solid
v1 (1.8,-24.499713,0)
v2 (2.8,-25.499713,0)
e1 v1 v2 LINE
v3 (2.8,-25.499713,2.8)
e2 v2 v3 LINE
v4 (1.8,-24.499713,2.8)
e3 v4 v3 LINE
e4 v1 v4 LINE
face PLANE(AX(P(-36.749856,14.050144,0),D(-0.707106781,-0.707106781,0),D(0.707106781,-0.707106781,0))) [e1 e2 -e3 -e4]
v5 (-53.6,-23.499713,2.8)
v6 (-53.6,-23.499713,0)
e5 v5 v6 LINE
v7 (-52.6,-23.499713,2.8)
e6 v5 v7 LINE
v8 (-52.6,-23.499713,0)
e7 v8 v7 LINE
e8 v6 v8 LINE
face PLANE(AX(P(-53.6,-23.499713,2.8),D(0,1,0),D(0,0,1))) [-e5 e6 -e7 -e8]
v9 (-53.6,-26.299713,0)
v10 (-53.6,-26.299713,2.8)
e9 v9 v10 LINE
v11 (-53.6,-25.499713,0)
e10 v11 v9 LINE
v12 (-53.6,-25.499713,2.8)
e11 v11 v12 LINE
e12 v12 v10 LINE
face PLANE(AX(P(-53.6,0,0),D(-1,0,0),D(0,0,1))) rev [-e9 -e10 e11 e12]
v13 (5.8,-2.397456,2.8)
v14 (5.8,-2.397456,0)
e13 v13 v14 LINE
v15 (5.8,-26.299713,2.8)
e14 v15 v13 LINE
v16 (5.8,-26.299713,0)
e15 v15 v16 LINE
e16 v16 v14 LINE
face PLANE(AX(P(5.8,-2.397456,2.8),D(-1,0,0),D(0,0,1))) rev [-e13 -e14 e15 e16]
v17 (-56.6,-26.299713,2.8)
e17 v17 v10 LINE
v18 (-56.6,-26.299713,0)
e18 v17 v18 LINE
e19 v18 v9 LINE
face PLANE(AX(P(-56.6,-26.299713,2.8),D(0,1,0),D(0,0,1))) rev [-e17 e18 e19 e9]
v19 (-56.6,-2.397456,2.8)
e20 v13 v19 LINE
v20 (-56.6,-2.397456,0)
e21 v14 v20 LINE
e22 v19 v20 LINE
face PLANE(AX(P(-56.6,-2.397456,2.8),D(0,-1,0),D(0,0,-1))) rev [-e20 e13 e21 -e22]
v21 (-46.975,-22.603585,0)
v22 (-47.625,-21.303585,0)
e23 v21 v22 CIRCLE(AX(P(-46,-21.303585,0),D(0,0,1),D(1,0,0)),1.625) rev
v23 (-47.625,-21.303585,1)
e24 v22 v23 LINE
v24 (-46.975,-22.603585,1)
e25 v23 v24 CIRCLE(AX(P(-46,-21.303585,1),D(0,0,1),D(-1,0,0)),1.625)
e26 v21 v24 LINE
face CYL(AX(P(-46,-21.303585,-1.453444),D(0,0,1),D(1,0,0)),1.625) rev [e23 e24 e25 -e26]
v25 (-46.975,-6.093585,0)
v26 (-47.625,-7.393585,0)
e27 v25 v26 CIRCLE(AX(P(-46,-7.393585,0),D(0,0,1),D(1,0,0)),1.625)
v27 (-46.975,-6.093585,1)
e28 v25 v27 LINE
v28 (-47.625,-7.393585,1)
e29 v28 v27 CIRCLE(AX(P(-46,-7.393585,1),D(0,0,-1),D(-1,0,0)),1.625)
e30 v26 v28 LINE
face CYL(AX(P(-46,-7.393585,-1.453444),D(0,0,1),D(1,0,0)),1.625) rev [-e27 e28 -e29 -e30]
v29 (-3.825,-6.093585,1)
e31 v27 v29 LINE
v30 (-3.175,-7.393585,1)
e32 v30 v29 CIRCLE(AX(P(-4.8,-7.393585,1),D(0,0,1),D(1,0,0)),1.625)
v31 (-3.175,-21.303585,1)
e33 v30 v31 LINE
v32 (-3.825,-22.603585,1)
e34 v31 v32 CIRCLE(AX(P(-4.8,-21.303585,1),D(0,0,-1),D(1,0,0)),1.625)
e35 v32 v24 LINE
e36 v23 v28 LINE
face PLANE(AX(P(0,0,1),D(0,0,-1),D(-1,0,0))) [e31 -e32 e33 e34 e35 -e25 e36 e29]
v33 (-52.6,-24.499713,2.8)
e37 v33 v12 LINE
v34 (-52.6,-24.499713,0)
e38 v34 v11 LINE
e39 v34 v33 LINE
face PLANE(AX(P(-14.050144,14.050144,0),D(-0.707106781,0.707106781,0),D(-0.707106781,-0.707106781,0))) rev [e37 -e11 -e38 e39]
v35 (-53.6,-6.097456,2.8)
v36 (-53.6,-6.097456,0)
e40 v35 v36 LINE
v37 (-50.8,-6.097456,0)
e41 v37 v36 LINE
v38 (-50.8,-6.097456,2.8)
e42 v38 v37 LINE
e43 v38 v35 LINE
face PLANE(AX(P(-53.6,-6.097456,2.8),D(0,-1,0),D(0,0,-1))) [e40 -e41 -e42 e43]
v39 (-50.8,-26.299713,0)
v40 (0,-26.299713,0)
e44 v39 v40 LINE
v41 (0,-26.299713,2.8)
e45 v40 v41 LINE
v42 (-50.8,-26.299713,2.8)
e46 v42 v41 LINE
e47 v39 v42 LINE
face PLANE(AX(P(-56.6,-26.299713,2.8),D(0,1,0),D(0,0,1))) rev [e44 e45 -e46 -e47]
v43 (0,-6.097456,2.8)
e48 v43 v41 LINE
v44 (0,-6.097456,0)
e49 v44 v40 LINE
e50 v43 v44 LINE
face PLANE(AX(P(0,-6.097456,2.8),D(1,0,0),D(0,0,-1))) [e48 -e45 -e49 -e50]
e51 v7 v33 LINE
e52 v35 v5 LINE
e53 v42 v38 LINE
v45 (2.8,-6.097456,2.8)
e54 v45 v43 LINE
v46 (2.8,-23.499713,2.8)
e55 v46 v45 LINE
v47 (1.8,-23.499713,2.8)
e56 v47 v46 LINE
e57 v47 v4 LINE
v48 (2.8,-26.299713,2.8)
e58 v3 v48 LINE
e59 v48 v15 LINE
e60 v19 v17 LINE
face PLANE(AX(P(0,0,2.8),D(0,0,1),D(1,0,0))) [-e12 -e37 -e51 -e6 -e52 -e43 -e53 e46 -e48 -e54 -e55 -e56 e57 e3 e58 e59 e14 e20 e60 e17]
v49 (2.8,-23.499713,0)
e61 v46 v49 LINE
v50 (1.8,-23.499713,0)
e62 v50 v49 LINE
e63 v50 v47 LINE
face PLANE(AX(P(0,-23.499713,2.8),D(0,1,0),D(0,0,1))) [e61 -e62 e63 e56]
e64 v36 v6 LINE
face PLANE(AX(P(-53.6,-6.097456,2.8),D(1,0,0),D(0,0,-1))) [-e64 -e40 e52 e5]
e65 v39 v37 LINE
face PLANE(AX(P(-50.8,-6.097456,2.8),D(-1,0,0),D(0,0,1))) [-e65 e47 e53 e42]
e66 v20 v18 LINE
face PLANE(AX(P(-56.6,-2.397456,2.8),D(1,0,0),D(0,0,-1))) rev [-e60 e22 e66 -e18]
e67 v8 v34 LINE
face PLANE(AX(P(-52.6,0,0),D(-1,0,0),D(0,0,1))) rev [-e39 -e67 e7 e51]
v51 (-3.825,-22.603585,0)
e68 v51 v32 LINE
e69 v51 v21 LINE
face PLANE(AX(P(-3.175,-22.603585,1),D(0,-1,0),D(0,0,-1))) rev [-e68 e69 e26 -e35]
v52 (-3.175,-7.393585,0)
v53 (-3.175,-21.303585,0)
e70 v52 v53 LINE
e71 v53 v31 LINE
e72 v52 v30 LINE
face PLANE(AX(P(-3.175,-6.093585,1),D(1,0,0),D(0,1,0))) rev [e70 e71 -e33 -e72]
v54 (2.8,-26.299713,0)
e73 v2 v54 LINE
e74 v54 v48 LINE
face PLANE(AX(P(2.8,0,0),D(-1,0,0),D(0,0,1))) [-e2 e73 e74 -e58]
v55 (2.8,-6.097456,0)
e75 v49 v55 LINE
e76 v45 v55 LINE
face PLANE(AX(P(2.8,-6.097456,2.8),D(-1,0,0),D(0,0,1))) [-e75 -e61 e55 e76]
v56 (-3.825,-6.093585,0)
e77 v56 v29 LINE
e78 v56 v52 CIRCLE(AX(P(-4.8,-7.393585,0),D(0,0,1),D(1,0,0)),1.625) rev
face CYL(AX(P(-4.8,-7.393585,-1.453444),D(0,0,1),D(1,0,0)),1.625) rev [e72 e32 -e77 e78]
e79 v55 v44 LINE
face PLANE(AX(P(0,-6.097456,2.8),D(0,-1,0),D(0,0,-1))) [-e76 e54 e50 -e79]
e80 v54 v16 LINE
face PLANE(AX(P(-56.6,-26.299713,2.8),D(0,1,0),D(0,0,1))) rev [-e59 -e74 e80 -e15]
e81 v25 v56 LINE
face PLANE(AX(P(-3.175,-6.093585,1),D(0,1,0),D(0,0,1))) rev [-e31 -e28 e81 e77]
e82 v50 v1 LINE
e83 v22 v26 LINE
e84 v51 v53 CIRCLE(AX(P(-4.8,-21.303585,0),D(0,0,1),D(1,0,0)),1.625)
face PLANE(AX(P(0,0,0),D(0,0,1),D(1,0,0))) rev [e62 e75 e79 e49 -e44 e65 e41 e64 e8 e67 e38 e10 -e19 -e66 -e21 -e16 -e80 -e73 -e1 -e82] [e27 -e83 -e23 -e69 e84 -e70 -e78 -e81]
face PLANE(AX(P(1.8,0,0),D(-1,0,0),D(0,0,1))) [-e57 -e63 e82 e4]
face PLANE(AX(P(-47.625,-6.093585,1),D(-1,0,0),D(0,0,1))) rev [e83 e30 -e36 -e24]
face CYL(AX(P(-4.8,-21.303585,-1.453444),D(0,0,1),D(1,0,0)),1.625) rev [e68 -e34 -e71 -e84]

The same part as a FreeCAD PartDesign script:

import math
import FreeCAD as App
import Part
import Sketcher
Q = App.Units.Quantity


def add_polygon(sketch, points):
    """Adds a closed chain of lines whose ends are joined by coincident constraints."""
    first, n = sketch.GeometryCount, len(points)
    for a, b in zip(points, points[1:] + points[:1]):
        sketch.addGeometry(Part.LineSegment(App.Vector(*a, 0), App.Vector(*b, 0)), False)
    for i in range(n):
        sketch.addConstraint(Sketcher.Constraint("Coincident", first + i, 2, first + (i + 1) % n, 1))

doc = App.newDocument("Part")
body = doc.addObject("PartDesign::Body", "Body")

# Sketch on XY plane
sketch1 = doc.addObject("Sketcher::SketchObject", "Sketch")
body.addObject(sketch1)
sketch1.AttachmentSupport = (doc.XY_Plane, [""])
sketch1.MapMode = "FlatFace"
add_polygon(sketch1, [(-56.6, -2.4), (-56.6, -26.3), (5.8, -26.3), (5.8, -2.4)])  # lines 0-3
add_polygon(sketch1, [(-50.8, -23.5), (-53.6, -23.5), (-53.6, -6.1), (-50.8, -6.1)])  # lines 4-7
add_polygon(sketch1, [(2.8, -23.5), (0, -23.5), (0, -6.1), (2.8, -6.1)])  # lines 8-11
sketch1.addConstraint([
    Sketcher.Constraint("Vertical", 0),
    Sketcher.Constraint("Horizontal", 1),
    Sketcher.Constraint("Vertical", 2),
    Sketcher.Constraint("Horizontal", 3),
    Sketcher.Constraint("Horizontal", 4),
    Sketcher.Constraint("Vertical", 5),
    Sketcher.Constraint("Horizontal", 6),
    Sketcher.Constraint("Vertical", 7),
    Sketcher.Constraint("Horizontal", 8),
    Sketcher.Constraint("Vertical", 9),
    Sketcher.Constraint("Horizontal", 10),
    Sketcher.Constraint("Vertical", 11),
    Sketcher.Constraint("PointOnObject", 8, 2, -2),
    Sketcher.Constraint("Horizontal", 7, 2, 8, 2),
    Sketcher.Constraint("Horizontal", 6, 2, 9, 2),
    Sketcher.Constraint("Equal", 6, 8),
    Sketcher.Constraint("DistanceX", 1, 1, 1, 2, 62.4),
    Sketcher.Constraint("DistanceX", 4, 2, 4, 1, 2.8),
    Sketcher.Constraint("DistanceX", 0, 2, 4, 2, 3.0),
    Sketcher.Constraint("DistanceX", 10, 2, 2, 2, 3.0),
    Sketcher.Constraint("DistanceY", 0, 2, 4, 2, 2.8),
    Sketcher.Constraint("DistanceY", 5, 2, 3, 2, 3.7),
    Sketcher.Constraint("DistanceY", 0, 2, 0, 1, 23.902256),
    Sketcher.Constraint("DistanceY", 0, 2, -1, 1, 26.299713),
])
pad1 = doc.addObject("PartDesign::Pad", "Pad")
body.addObject(pad1)
pad1.Profile = sketch1
pad1.Length = 2.8

# Sketch on XY plane
sketch2 = doc.addObject("Sketcher::SketchObject", "Sketch001")
body.addObject(sketch2)
sketch2.AttachmentSupport = (doc.XY_Plane, [""])
sketch2.MapMode = "FlatFace"
sketch2.AttachmentOffset = App.Placement(App.Vector(0, 0, 2.8), App.Rotation())
add_polygon(sketch2, [(-50.8, -23.5), (-52.6, -23.5), (-52.6, -24.5), (-53.6, -25.5), (-53.6, -26.3), (-50.8, -26.3)])  # lines 0-5
sketch2.addConstraint([
    Sketcher.Constraint("Horizontal", 0),
    Sketcher.Constraint("Vertical", 1),
    Sketcher.Constraint("Vertical", 3),
    Sketcher.Constraint("Horizontal", 4),
    Sketcher.Constraint("Vertical", 5),
    Sketcher.Constraint("Equal", 4, 5),
    Sketcher.Constraint("DistanceY", 1, 2, 1, 1, 1.0),
    Sketcher.Constraint("Angle", 2, Q("-135 deg")),
    Sketcher.Constraint("DistanceX", 0, 2, 0, 1, 1.8),
    Sketcher.Constraint("DistanceX", 4, 1, 4, 2, 2.8),
    Sketcher.Constraint("DistanceX", 0, 2, -1, 1, 52.6),
    Sketcher.Constraint("DistanceY", 0, 2, -1, 1, 23.499713),
])
pocket1 = doc.addObject("PartDesign::Pocket", "Pocket")
body.addObject(pocket1)
pocket1.Profile = sketch2
pocket1.Type = "ThroughAll"
doc.recompute()

datumplane = doc.addObject("PartDesign::Plane", "DatumPlane")
body.addObject(datumplane)
datumplane.AttachmentSupport = (doc.YZ_Plane, [""])
datumplane.MapMode = "FlatFace"
datumplane.AttachmentOffset = App.Placement(App.Vector(0, 0, -25.4), App.Rotation())
mirrored = doc.addObject("PartDesign::Mirrored", "Mirrored")
body.addObject(mirrored)
mirrored.Originals = [pocket1]
mirrored.MirrorPlane = (datumplane, [""])
body.Tip = mirrored

# Sketch on XY plane
sketch3 = doc.addObject("Sketcher::SketchObject", "Sketch002")
body.addObject(sketch3)
sketch3.AttachmentSupport = (doc.XY_Plane, [""])
sketch3.MapMode = "FlatFace"
add_polygon(sketch3, [(-3, -6), (-3, -23), (-48, -23), (-48, -6)])  # lines 0-3
sketch3.addConstraint([
    Sketcher.Constraint("Vertical", 0),
    Sketcher.Constraint("Horizontal", 1),
    Sketcher.Constraint("Vertical", 2),
    Sketcher.Constraint("Horizontal", 3),
    Sketcher.Constraint("DistanceX", 1, 2, 1, 1, 44.45),
    Sketcher.Constraint("DistanceY", 0, 2, 0, 1, 16.51),
    Sketcher.Constraint("DistanceX", 0, 2, -1, 1, 3.175),
    Sketcher.Constraint("DistanceY", 0, 2, -1, 1, 22.603585),
])
pocket2 = doc.addObject("PartDesign::Pocket", "Pocket001")
body.addObject(pocket2)
pocket2.Profile = sketch3
pocket2.Length = 1
pocket2.Reversed = True

# Sketch on XY plane
sketch4 = doc.addObject("Sketcher::SketchObject", "Sketch003")
body.addObject(sketch4)
sketch4.AttachmentSupport = (doc.XY_Plane, [""])
sketch4.MapMode = "FlatFace"
sketch4.AttachmentOffset = App.Placement(App.Vector(0, 0, 1), App.Rotation())
sketch4.addGeometry([
    Part.LineSegment(App.Vector(-3.8, -6.1, 0), App.Vector(-3.2, -6.1, 0)),
    Part.LineSegment(App.Vector(-3.2, -6.1, 0), App.Vector(-3.2, -7.4, 0)),
    Part.ArcOfCircle(Part.Circle(App.Vector(-4.8, -7.4, 0), App.Vector(0, 0, 1), 1.6), math.radians(0), math.radians(53)),
], False)
sketch4.addConstraint([
    Sketcher.Constraint("Coincident", 0, 2, 1, 1),
    Sketcher.Constraint("Tangent", 1, 2, 2, 1),
    Sketcher.Constraint("Coincident", 2, 2, 0, 1),
    Sketcher.Constraint("Horizontal", 0),
    Sketcher.Constraint("Vertical", 1),
    Sketcher.Constraint("DistanceY", 1, 2, 1, 1, 1.3),
    Sketcher.Constraint("Radius", 2, 1.625),
    Sketcher.Constraint("DistanceX", 2, 3, -1, 1, 4.8),
    Sketcher.Constraint("DistanceY", 2, 3, -1, 1, 7.393585),
])
pad2 = doc.addObject("PartDesign::Pad", "Pad001")
body.addObject(pad2)
pad2.Profile = sketch4
pad2.Length = 1
pad2.Reversed = True
doc.recompute()

datumplane2 = doc.addObject("PartDesign::Plane", "DatumPlane001")
body.addObject(datumplane2)
datumplane2.AttachmentSupport = (doc.YZ_Plane, [""])
datumplane2.MapMode = "FlatFace"
datumplane2.AttachmentOffset = App.Placement(App.Vector(0, 0, -25.4), App.Rotation())
mirrored2 = doc.addObject("PartDesign::Mirrored", "Mirrored001")
body.addObject(mirrored2)
mirrored2.Originals = [pad2]
mirrored2.MirrorPlane = (datumplane2, [""])
body.Tip = mirrored2
doc.recompute()

datumplane3 = doc.addObject("PartDesign::Plane", "DatumPlane002")
body.addObject(datumplane3)
datumplane3.AttachmentSupport = (doc.XZ_Plane, [""])
datumplane3.MapMode = "FlatFace"
datumplane3.AttachmentOffset = App.Placement(App.Vector(0, 0, 14.348585), App.Rotation())
mirrored3 = doc.addObject("PartDesign::Mirrored", "Mirrored002")
body.addObject(mirrored3)
mirrored3.Originals = [pad2]
mirrored3.MirrorPlane = (datumplane3, [""])
body.Tip = mirrored3

# Sketch on XY plane
sketch5 = doc.addObject("Sketcher::SketchObject", "Sketch004")
body.addObject(sketch5)
sketch5.AttachmentSupport = (doc.XY_Plane, [""])
sketch5.MapMode = "FlatFace"
sketch5.AttachmentOffset = App.Placement(App.Vector(0, 0, 1), App.Rotation())
sketch5.addGeometry([
    Part.LineSegment(App.Vector(-47, -22.6, 0), App.Vector(-47.6, -22.6, 0)),
    Part.LineSegment(App.Vector(-47.6, -22.6, 0), App.Vector(-47.6, -21.3, 0)),
    Part.ArcOfCircle(Part.Circle(App.Vector(-46, -21.3, 0), App.Vector(0, 0, 1), 1.6), math.radians(-180), math.radians(-127)),
], False)
sketch5.addConstraint([
    Sketcher.Constraint("Coincident", 0, 2, 1, 1),
    Sketcher.Constraint("Tangent", 1, 2, 2, 1),
    Sketcher.Constraint("Coincident", 2, 2, 0, 1),
    Sketcher.Constraint("Horizontal", 0),
    Sketcher.Constraint("Vertical", 1),
    Sketcher.Constraint("DistanceY", 1, 1, 1, 2, 1.3),
    Sketcher.Constraint("DistanceX", 2, 3, -1, 1, 46.0),
    Sketcher.Constraint("Radius", 2, 1.625),
    Sketcher.Constraint("DistanceY", 2, 3, -1, 1, 21.303585),
])
pad3 = doc.addObject("PartDesign::Pad", "Pad002")
body.addObject(pad3)
pad3.Profile = sketch5
pad3.Length = 1
pad3.Reversed = True

doc.recompute()
